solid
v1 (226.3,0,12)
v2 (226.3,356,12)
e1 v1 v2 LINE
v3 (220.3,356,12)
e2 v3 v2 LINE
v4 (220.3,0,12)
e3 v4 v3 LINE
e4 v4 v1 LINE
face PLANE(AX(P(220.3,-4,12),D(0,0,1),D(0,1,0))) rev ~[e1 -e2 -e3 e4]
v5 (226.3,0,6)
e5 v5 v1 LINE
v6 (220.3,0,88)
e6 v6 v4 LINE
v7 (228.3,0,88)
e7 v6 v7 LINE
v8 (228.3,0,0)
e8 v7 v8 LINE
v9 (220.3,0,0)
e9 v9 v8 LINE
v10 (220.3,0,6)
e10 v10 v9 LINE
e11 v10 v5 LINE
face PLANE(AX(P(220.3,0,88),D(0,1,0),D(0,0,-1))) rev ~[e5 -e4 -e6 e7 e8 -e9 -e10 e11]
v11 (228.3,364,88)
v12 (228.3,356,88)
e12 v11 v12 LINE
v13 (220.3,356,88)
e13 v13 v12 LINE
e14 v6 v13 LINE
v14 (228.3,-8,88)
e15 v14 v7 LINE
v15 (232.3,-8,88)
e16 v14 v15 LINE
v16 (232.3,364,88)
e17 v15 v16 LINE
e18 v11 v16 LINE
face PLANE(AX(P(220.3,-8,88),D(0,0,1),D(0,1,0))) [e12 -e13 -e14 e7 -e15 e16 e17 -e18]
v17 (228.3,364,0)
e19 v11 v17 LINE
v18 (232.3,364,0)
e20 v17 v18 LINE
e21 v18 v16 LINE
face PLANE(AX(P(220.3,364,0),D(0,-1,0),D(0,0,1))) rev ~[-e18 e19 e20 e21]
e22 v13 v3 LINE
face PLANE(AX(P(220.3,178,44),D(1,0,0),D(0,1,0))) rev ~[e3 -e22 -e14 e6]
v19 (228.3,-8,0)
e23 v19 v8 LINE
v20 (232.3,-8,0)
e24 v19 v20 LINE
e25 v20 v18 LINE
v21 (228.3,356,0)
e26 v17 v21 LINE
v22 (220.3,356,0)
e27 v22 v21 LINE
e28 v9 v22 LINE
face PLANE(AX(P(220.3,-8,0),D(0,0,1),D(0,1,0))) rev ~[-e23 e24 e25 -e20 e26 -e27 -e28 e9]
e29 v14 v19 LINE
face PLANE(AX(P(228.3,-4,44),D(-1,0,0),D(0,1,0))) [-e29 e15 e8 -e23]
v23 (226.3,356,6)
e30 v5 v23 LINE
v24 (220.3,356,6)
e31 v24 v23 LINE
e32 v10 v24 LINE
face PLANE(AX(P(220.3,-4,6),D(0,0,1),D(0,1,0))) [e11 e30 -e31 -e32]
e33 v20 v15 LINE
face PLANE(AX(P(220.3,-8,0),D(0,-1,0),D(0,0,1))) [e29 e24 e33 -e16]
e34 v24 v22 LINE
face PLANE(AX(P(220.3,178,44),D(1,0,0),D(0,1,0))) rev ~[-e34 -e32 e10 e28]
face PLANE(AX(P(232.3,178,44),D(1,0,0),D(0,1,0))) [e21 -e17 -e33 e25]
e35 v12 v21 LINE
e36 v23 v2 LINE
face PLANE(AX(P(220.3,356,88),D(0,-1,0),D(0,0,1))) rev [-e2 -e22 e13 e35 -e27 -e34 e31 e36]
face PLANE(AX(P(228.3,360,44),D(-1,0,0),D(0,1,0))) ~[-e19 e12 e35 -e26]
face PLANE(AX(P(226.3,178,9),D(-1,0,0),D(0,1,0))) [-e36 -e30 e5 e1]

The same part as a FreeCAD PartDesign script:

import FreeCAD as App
import Part
import Sketcher
Q = App.Units.Quantity

doc = App.newDocument("Part")
params = doc.addObject("Spreadsheet::Sheet", "Params")
for row, (alias, value) in enumerate([
    ("sketch1_width", "372 mm"),
    ("sketch1_height", "88 mm"),
    ("pad1_length", "12 mm"),
    ("sketch2_width", "8 mm"),
    ("sketch2_height", "88 mm"),
    ("pocket1_length", "8 mm"),
    ("sketch3_width", "364 mm"),
    ("sketch3_height", "6 mm"),
    ("pocket2_length", "6 mm"),
], start=1):
    params.set(f"A{row}", alias)
    params.set(f"B{row}", "=" + value)
    params.setAlias(f"B{row}", alias)

body = doc.addObject("PartDesign::Body", "Body")

sketch1 = doc.addObject("Sketcher::SketchObject", "Sketch")
body.addObject(sketch1)
sketch1.AttachmentSupport = (doc.XY_Plane, [""])
sketch1.MapMode = "FlatFace"
sketch1.addGeometry(Part.LineSegment(App.Vector(-186, 88, 0), App.Vector(-186, 0, 0)), False)
sketch1.addGeometry(Part.LineSegment(App.Vector(-186, 0, 0), App.Vector(186, 0, 0)), False)
sketch1.addGeometry(Part.LineSegment(App.Vector(186, 0, 0), App.Vector(186, 88, 0)), False)
sketch1.addGeometry(Part.LineSegment(App.Vector(186, 88, 0), App.Vector(-186, 88, 0)), False)
sketch1.addConstraint(Sketcher.Constraint("Coincident", 0, 2, 1, 1))
sketch1.addConstraint(Sketcher.Constraint("Coincident", 1, 2, 2, 1))
sketch1.addConstraint(Sketcher.Constraint("Coincident", 2, 2, 3, 1))
sketch1.addConstraint(Sketcher.Constraint("Coincident", 3, 2, 0, 1))
sketch1.addConstraint(Sketcher.Constraint("Vertical", 0))
sketch1.addConstraint(Sketcher.Constraint("Horizontal", 1))
sketch1.addConstraint(Sketcher.Constraint("Vertical", 2))
sketch1.addConstraint(Sketcher.Constraint("Horizontal", 3))
sketch1.addConstraint(Sketcher.Constraint("Symmetric", 0, 2, 1, 2, -1, 1))
sketch1.addConstraint(Sketcher.Constraint("DistanceX", 1, 1, 1, 2, Q("372 mm")))
sketch1.addConstraint(Sketcher.Constraint("DistanceY", 0, 2, 0, 1, Q("88 mm")))
sketch1.setExpression("Constraints[9]", "Params.sketch1_width")
sketch1.setExpression("Constraints[10]", "Params.sketch1_height")
pad1 = doc.addObject("PartDesign::Pad", "Pad")
body.addObject(pad1)
pad1.Profile = sketch1
pad1.setExpression("Length", "Params.pad1_length")

sketch2 = doc.addObject("Sketcher::SketchObject", "Sketch001")
body.addObject(sketch2)
sketch2.AttachmentSupport = (doc.XY_Plane, [""])
sketch2.MapMode = "FlatFace"
sketch2.addGeometry(Part.LineSegment(App.Vector(-186, 0, 0), App.Vector(-186, 88, 0)), False)
sketch2.addGeometry(Part.LineSegment(App.Vector(-186, 88, 0), App.Vector(-178, 88, 0)), False)
sketch2.addGeometry(Part.LineSegment(App.Vector(-178, 88, 0), App.Vector(-178, 0, 0)), False)
sketch2.addGeometry(Part.LineSegment(App.Vector(-178, 0, 0), App.Vector(-186, 0, 0)), False)
sketch2.addConstraint(Sketcher.Constraint("Coincident", 0, 2, 1, 1))
sketch2.addConstraint(Sketcher.Constraint("Coincident", 1, 2, 2, 1))
sketch2.addConstraint(Sketcher.Constraint("Coincident", 2, 2, 3, 1))
sketch2.addConstraint(Sketcher.Constraint("Coincident", 3, 2, 0, 1))
sketch2.addConstraint(Sketcher.Constraint("Vertical", 0))
sketch2.addConstraint(Sketcher.Constraint("Horizontal", 1))
sketch2.addConstraint(Sketcher.Constraint("Vertical", 2))
sketch2.addConstraint(Sketcher.Constraint("Horizontal", 3))
sketch2.addConstraint(Sketcher.Constraint("PointOnObject", 2, 2, -1))
sketch2.addConstraint(Sketcher.Constraint("DistanceX", 1, 1, 1, 2, Q("8 mm")))
sketch2.addConstraint(Sketcher.Constraint("DistanceY", 0, 1, 0, 2, Q("88 mm")))
sketch2.addConstraint(Sketcher.Constraint("DistanceX", 0, 2, -1, 1, Q("186 mm")))
sketch2.setExpression("Constraints[9]", "Params.sketch2_width")
sketch2.setExpression("Constraints[10]", "Params.sketch2_height")
pocket1 = doc.addObject("PartDesign::Pocket", "Pocket")
body.addObject(pocket1)
pocket1.Profile = sketch2
pocket1.setExpression("Length", "Params.pocket1_length")
pocket1.Reversed = True
doc.recompute()

mirrored = doc.addObject("PartDesign::Mirrored", "Mirrored")
body.addObject(mirrored)
mirrored.Originals = [pocket1]
mirrored.MirrorPlane = (doc.YZ_Plane, [""])
body.Tip = mirrored

sketch3 = doc.addObject("Sketcher::SketchObject", "Sketch002")
body.addObject(sketch3)
sketch3.AttachmentSupport = (doc.XY_Plane, [""])
sketch3.MapMode = "FlatFace"
sketch3.addGeometry(Part.LineSegment(App.Vector(-182, 6, 0), App.Vector(-182, 12, 0)), False)
sketch3.addGeometry(Part.LineSegment(App.Vector(-182, 12, 0), App.Vector(182, 12, 0)), False)
sketch3.addGeometry(Part.LineSegment(App.Vector(182, 12, 0), App.Vector(182, 6, 0)), False)
sketch3.addGeometry(Part.LineSegment(App.Vector(182, 6, 0), App.Vector(-182, 6, 0)), False)
sketch3.addConstraint(Sketcher.Constraint("Coincident", 0, 2, 1, 1))
sketch3.addConstraint(Sketcher.Constraint("Coincident", 1, 2, 2, 1))
sketch3.addConstraint(Sketcher.Constraint("Coincident", 2, 2, 3, 1))
sketch3.addConstraint(Sketcher.Constraint("Coincident", 3, 2, 0, 1))
sketch3.addConstraint(Sketcher.Constraint("Vertical", 0))
sketch3.addConstraint(Sketcher.Constraint("Horizontal", 1))
sketch3.addConstraint(Sketcher.Constraint("Vertical", 2))
sketch3.addConstraint(Sketcher.Constraint("Horizontal", 3))
sketch3.addConstraint(Sketcher.Constraint("DistanceX", 1, 1, 1, 2, Q("364 mm")))
sketch3.addConstraint(Sketcher.Constraint("DistanceY", 0, 1, 0, 2, Q("6 mm")))
sketch3.addConstraint(Sketcher.Constraint("DistanceX", 0, 2, -1, 1, Q("182 mm")))
sketch3.addConstraint(Sketcher.Constraint("DistanceY", -1, 1, 0, 2, Q("12 mm")))
sketch3.setExpression("Constraints[8]", "Params.sketch3_width")
sketch3.setExpression("Constraints[9]", "Params.sketch3_height")
pocket2 = doc.addObject("PartDesign::Pocket", "Pocket001")
body.addObject(pocket2)
pocket2.Profile = sketch3
pocket2.setExpression("Length", "Params.pocket2_length")
pocket2.Reversed = True
body2 = doc.addObject("PartDesign::Body", "Body001")
doc.recompute()

body.Placement = App.Placement(App.Vector(0, 0, 0), App.Rotation(App.Vector(1, 0, 0), 90))
boolean = doc.addObject("PartDesign::Boolean", "Boolean")
body2.addObject(boolean)
boolean.Type = "Fuse"
boolean.addObjects([body])
body3 = doc.addObject("PartDesign::Body", "Body002")
doc.recompute()

body2.Placement = App.Placement(App.Vector(220.3, 178, 0), App.Rotation(App.Vector(0, 0, 1), 90))
boolean2 = doc.addObject("PartDesign::Boolean", "Boolean001")
body3.addObject(boolean2)
boolean2.Type = "Fuse"
boolean2.addObjects([body2])

doc.recompute()
